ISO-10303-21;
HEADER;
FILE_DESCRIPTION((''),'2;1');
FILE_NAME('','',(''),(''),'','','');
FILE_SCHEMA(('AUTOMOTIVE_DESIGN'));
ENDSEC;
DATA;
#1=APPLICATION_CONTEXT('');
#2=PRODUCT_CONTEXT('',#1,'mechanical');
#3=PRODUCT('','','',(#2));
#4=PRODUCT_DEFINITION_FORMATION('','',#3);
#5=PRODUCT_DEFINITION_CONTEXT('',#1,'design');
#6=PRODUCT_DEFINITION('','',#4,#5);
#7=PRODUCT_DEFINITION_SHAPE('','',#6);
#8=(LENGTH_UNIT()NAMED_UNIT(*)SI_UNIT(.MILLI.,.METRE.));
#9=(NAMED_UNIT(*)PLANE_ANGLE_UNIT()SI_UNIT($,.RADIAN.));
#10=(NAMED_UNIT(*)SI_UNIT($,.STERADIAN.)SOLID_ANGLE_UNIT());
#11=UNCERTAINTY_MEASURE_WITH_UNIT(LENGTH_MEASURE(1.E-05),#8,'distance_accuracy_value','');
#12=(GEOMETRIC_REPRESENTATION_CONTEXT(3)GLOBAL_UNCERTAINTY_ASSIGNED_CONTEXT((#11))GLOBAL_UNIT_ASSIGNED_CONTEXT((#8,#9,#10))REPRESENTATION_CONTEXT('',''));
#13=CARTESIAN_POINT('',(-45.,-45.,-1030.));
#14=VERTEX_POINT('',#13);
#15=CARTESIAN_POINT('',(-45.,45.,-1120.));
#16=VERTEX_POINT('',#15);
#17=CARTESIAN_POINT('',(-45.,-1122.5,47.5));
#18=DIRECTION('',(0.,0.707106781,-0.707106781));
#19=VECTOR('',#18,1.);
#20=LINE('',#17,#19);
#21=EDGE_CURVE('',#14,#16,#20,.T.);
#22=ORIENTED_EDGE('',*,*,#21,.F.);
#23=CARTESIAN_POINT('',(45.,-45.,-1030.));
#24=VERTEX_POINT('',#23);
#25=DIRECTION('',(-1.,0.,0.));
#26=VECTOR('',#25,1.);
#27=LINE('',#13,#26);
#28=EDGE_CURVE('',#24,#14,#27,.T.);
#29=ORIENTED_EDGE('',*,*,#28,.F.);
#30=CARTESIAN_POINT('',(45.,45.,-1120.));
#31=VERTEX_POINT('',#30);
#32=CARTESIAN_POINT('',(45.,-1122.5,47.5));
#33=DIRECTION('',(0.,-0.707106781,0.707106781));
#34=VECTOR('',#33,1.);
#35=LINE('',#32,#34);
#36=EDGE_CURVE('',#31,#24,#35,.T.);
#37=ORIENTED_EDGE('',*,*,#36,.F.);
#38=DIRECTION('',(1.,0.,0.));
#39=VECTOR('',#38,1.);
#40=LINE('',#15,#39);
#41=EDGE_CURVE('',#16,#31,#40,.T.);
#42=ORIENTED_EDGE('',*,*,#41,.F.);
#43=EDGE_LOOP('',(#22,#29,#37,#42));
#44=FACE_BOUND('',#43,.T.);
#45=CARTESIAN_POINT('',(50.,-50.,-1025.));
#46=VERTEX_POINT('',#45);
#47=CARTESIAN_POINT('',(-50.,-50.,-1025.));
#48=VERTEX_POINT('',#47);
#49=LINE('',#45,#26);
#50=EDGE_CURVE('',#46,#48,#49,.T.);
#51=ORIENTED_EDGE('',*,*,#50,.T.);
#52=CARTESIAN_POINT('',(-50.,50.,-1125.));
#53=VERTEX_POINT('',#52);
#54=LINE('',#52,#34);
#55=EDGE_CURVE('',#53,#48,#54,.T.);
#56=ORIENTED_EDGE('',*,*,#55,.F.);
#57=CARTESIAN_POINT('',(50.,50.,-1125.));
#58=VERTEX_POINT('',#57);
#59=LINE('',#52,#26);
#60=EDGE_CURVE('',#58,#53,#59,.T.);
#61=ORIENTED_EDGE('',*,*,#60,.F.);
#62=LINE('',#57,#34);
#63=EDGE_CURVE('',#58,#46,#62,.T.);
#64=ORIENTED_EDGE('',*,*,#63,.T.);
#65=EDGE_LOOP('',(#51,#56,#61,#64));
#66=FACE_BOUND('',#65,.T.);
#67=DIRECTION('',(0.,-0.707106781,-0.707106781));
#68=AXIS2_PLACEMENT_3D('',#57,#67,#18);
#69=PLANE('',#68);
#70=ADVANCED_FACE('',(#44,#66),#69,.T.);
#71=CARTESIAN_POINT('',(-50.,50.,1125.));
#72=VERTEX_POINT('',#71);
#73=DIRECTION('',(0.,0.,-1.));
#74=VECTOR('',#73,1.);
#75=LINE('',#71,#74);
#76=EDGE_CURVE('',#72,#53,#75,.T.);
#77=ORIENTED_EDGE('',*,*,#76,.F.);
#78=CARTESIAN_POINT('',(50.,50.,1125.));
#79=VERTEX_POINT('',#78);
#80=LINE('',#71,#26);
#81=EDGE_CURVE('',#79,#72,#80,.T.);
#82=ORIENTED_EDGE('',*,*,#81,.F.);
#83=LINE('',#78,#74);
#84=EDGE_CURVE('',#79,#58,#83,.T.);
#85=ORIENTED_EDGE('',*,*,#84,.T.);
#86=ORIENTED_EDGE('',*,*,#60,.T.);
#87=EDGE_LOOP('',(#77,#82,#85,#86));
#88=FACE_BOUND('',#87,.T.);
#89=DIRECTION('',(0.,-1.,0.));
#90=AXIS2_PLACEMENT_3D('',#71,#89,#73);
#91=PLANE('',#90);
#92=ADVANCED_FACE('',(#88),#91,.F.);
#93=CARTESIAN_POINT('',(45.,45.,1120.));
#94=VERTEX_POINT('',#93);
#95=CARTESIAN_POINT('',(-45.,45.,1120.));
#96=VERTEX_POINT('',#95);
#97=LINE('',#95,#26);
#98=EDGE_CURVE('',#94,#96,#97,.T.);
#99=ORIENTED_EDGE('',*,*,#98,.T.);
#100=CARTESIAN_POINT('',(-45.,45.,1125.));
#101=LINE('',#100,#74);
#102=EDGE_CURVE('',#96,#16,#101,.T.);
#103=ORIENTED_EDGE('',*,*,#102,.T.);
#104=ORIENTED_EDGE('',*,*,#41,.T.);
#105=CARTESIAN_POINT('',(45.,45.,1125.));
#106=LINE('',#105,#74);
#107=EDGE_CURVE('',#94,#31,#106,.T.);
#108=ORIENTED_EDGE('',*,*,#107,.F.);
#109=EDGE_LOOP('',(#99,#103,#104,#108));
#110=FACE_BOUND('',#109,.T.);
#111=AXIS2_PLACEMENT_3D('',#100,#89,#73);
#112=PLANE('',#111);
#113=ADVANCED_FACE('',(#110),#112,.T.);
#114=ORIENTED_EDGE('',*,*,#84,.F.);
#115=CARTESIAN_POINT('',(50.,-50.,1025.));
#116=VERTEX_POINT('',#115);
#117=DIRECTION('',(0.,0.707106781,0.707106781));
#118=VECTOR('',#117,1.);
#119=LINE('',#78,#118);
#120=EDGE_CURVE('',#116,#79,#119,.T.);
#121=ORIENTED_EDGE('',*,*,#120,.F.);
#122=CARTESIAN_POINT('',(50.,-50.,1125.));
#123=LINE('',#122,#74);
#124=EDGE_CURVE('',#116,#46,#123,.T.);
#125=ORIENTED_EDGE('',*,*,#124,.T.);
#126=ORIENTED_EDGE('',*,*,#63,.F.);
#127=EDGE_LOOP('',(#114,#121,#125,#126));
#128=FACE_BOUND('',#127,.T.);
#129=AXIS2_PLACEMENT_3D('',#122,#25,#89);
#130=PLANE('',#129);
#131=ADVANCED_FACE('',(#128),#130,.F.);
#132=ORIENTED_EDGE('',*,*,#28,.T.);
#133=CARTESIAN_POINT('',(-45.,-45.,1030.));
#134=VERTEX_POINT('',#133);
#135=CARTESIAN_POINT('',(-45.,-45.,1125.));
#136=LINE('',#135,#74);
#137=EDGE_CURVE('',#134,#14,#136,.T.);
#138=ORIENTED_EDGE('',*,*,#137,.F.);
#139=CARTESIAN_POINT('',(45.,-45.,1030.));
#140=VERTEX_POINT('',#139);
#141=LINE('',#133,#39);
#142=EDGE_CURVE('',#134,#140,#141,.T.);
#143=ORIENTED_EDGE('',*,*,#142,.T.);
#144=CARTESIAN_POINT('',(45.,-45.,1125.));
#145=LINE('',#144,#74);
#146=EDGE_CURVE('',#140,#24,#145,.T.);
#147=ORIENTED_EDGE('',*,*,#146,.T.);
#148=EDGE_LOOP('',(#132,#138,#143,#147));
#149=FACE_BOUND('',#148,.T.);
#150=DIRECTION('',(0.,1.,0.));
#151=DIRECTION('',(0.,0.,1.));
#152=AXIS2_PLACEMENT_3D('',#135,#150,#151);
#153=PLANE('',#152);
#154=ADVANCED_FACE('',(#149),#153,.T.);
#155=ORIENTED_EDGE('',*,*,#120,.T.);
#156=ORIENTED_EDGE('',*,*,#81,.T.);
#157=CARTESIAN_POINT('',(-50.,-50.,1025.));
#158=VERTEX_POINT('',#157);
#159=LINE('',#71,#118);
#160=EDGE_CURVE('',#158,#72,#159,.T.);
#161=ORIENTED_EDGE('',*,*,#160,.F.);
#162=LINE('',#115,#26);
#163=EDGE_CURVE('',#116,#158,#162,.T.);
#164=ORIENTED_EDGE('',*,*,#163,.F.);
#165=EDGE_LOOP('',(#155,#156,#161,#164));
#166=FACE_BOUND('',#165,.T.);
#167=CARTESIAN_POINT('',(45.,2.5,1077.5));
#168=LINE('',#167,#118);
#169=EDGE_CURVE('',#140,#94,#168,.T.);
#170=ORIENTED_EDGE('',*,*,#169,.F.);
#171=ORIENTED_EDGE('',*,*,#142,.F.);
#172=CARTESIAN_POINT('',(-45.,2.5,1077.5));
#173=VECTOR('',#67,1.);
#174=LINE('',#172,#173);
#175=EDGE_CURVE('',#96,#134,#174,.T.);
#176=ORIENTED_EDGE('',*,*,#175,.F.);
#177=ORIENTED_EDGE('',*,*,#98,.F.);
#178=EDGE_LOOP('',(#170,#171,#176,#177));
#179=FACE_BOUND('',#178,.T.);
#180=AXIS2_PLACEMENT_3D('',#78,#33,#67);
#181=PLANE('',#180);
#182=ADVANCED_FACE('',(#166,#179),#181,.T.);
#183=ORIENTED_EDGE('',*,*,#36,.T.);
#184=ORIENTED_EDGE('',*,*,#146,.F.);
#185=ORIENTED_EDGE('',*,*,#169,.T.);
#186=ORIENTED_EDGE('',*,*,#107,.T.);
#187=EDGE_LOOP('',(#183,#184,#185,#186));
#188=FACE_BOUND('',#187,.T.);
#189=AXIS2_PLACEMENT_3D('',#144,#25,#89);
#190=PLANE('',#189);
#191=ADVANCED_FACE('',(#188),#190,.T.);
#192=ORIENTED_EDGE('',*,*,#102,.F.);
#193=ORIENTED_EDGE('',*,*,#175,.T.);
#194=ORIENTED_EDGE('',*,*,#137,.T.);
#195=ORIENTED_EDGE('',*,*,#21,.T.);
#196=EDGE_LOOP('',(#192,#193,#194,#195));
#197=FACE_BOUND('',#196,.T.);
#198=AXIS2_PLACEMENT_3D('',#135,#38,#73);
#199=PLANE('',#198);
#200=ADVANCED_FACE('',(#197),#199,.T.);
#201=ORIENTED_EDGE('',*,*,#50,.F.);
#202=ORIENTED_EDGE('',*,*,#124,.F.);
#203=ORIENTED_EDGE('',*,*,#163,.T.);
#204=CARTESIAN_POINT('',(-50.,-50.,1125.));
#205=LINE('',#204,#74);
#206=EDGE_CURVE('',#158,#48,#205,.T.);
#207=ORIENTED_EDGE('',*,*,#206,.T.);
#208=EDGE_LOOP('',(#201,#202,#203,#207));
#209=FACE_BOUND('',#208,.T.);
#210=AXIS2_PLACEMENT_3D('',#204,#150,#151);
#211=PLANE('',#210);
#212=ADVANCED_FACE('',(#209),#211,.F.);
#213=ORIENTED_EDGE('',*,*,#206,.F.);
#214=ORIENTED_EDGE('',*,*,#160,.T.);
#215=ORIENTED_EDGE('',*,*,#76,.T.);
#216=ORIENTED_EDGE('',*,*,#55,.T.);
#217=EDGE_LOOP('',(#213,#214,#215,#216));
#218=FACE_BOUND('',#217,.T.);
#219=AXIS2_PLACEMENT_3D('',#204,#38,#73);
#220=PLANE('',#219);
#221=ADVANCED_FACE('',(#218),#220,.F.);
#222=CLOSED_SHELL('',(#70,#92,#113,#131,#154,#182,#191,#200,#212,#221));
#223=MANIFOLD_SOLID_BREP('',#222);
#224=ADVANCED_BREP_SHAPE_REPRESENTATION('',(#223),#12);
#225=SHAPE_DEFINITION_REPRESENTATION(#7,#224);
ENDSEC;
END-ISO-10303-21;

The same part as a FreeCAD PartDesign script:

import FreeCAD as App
import Part
import Sketcher

V = App.Vector

doc = App.newDocument("Part")
body = doc.addObject("PartDesign::Body", "Body")

# Sketch on XY plane
sketch1 = doc.addObject("Sketcher::SketchObject", "Sketch")
body.addObject(sketch1)
sketch1.AttachmentSupport = (doc.XY_Plane, [""])
sketch1.MapMode = "FlatFace"
sketch1.addGeometry([
    Part.LineSegment(V(-50, 50, 0), V(-50, -50, 0)),  # 0
    Part.LineSegment(V(-50, -50, 0), V(50, -50, 0)),  # 1
    Part.LineSegment(V(50, -50, 0), V(50, 50, 0)),  # 2
    Part.LineSegment(V(50, 50, 0), V(-50, 50, 0)),  # 3
    Part.LineSegment(V(45, -45, 0), V(-45, -45, 0)),  # 4
    Part.LineSegment(V(-45, -45, 0), V(-45, 45, 0)),  # 5
    Part.LineSegment(V(-45, 45, 0), V(45, 45, 0)),  # 6
    Part.LineSegment(V(45, 45, 0), V(45, -45, 0)),  # 7
], False)
sketch1.addConstraint([
    Sketcher.Constraint("Coincident", 0, 2, 1, 1),
    Sketcher.Constraint("Coincident", 1, 2, 2, 1),
    Sketcher.Constraint("Coincident", 2, 2, 3, 1),
    Sketcher.Constraint("Coincident", 3, 2, 0, 1),
    Sketcher.Constraint("Coincident", 4, 2, 5, 1),
    Sketcher.Constraint("Coincident", 5, 2, 6, 1),
    Sketcher.Constraint("Coincident", 6, 2, 7, 1),
    Sketcher.Constraint("Coincident", 7, 2, 4, 1),
    Sketcher.Constraint("Vertical", 0),
    Sketcher.Constraint("Horizontal", 1),
    Sketcher.Constraint("Vertical", 2),
    Sketcher.Constraint("Horizontal", 3),
    Sketcher.Constraint("Horizontal", 4),
    Sketcher.Constraint("Vertical", 5),
    Sketcher.Constraint("Horizontal", 6),
    Sketcher.Constraint("Vertical", 7),
    Sketcher.Constraint("Symmetric", 0, 2, 2, 2, -1, 1),
    Sketcher.Constraint("Symmetric", 4, 2, 6, 2, -1, 1),
    Sketcher.Constraint("Equal", 3, 0),
    Sketcher.Constraint("Equal", 6, 5),
    Sketcher.Constraint("DistanceX", 1, 1, 1, 2, 100.0),
    Sketcher.Constraint("DistanceX", 4, 2, 4, 1, 90.0),
])
pad1 = doc.addObject("PartDesign::Pad", "Pad")
body.addObject(pad1)
pad1.Profile = sketch1
pad1.Length = 2250
pad1.Midplane = True

# Sketch on YZ plane
sketch2 = doc.addObject("Sketcher::SketchObject", "Sketch001")
body.addObject(sketch2)
sketch2.AttachmentSupport = (doc.YZ_Plane, [""])
sketch2.MapMode = "FlatFace"
sketch2.addGeometry([
    Part.LineSegment(V(-50, 1025, 0), V(50, 1125, 0)),  # 0
    Part.LineSegment(V(50, 1125, 0), V(-50, 1125, 0)),  # 1
    Part.LineSegment(V(-50, 1125, 0), V(-50, 1025, 0)),  # 2
    Part.LineSegment(V(50, -1125, 0), V(-50, -1025, 0)),  # 3
    Part.LineSegment(V(-50, -1025, 0), V(-50, -1125, 0)),  # 4
    Part.LineSegment(V(-50, -1125, 0), V(50, -1125, 0)),  # 5
], False)
sketch2.addConstraint([
    Sketcher.Constraint("Coincident", 0, 2, 1, 1),
    Sketcher.Constraint("Coincident", 1, 2, 2, 1),
    Sketcher.Constraint("Coincident", 2, 2, 0, 1),
    Sketcher.Constraint("Coincident", 3, 2, 4, 1),
    Sketcher.Constraint("Coincident", 4, 2, 5, 1),
    Sketcher.Constraint("Coincident", 5, 2, 3, 1),
    Sketcher.Constraint("Horizontal", 1),
    Sketcher.Constraint("Vertical", 2),
    Sketcher.Constraint("Vertical", 4),
    Sketcher.Constraint("Horizontal", 5),
    Sketcher.Constraint("Symmetric", 0, 2, 4, 2, -1, 1),
    Sketcher.Constraint("Symmetric", 2, 2, 3, 2, -1),
    Sketcher.Constraint("Perpendicular", 0, 3),
    Sketcher.Constraint("Vertical", 0, 2, 5, 2),
    Sketcher.Constraint("DistanceX", 1, 2, 1, 1, 100.0),
    Sketcher.Constraint("DistanceY", -1, 1, 0, 2, 1125.0),
])
pocket1 = doc.addObject("PartDesign::Pocket", "Pocket")
body.addObject(pocket1)
pocket1.Profile = sketch2
pocket1.Type = "ThroughAll"
pocket1.Midplane = True

doc.recompute()
